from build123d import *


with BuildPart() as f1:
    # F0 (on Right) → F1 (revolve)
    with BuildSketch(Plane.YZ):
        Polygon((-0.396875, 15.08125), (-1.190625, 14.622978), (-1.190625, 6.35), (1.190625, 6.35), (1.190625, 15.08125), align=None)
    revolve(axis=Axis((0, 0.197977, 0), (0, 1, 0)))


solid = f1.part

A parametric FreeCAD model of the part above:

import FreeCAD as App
import Part
import Sketcher
from FreeCAD import Vector
Q = App.Units.Quantity

doc = App.newDocument("Part")
params = doc.addObject("Spreadsheet::Sheet", "Params")
for row, (alias, value) in enumerate([
    ("sketch1_width", "0.09375 in"),
    ("sketch1_width2", "0.0625 in"),
    ("sketch1_height", "0.34375 in"),
    ("revolution_angle", "360 deg"),
], start=1):
    params.set(f"A{row}", alias)
    params.set(f"B{row}", "=" + value)
    params.setAlias(f"B{row}", alias)

body = doc.addObject("PartDesign::Body", "Body")

# Sketch on YZ plane
sketch1 = body.newObject("Sketcher::SketchObject", "Sketch")
sketch1.AttachmentSupport = (doc.getObject("YZ_Plane"), [""])
sketch1.MapMode = "FlatFace"
sketch1.addGeometry(Part.LineSegment(Vector(-0.396875, 15.08125, 0), Vector(-1.190625, 14.622978, 0)), False)
sketch1.addGeometry(Part.LineSegment(Vector(-1.190625, 14.622978, 0), Vector(-1.190625, 6.35, 0)), False)
sketch1.addGeometry(Part.LineSegment(Vector(-1.190625, 6.35, 0), Vector(1.190625, 6.35, 0)), False)
sketch1.addGeometry(Part.LineSegment(Vector(1.190625, 6.35, 0), Vector(1.190625, 15.08125, 0)), False)
sketch1.addGeometry(Part.LineSegment(Vector(1.190625, 15.08125, 0), Vector(-0.396875, 15.08125, 0)), False)
sketch1.addConstraint(Sketcher.Constraint("Coincident", 0, 2, 1, 1))
sketch1.addConstraint(Sketcher.Constraint("Coincident", 1, 2, 2, 1))
sketch1.addConstraint(Sketcher.Constraint("Coincident", 2, 2, 3, 1))
sketch1.addConstraint(Sketcher.Constraint("Coincident", 3, 2, 4, 1))
sketch1.addConstraint(Sketcher.Constraint("Coincident", 4, 2, 0, 1))
sketch1.addConstraint(Sketcher.Constraint("Vertical", 1))
sketch1.addConstraint(Sketcher.Constraint("Horizontal", 2))
sketch1.addConstraint(Sketcher.Constraint("Vertical", 3))
sketch1.addConstraint(Sketcher.Constraint("Horizontal", 4))
sketch1.addConstraint(Sketcher.Constraint("Angle", 0, Q("-149.999988 deg")))
sketch1.addConstraint(Sketcher.Constraint("DistanceX", 2, 1, 2, 2, Q("0.09375 in")))
sketch1.addConstraint(Sketcher.Constraint("DistanceX", 4, 2, 4, 1, Q("0.0625 in")))
sketch1.addConstraint(Sketcher.Constraint("DistanceY", 3, 1, 3, 2, Q("0.34375 in")))
sketch1.addConstraint(Sketcher.Constraint("DistanceY", -1, 1, 1, 2, Q("0.25 in")))
sketch1.addConstraint(Sketcher.Constraint("DistanceX", 0, 2, -1, 1, Q("0.046875 in")))
sketch1.setExpression("Constraints[10]", "Params.sketch1_width")
sketch1.setExpression("Constraints[11]", "Params.sketch1_width2")
sketch1.setExpression("Constraints[12]", "Params.sketch1_height")
revolution = body.newObject("PartDesign::Revolution", "Revolution")
revolution.Profile = sketch1
revolution.ReferenceAxis = (sketch1, ["H_Axis"])
revolution.setExpression("Angle", "Params.revolution_angle")

doc.recompute()
